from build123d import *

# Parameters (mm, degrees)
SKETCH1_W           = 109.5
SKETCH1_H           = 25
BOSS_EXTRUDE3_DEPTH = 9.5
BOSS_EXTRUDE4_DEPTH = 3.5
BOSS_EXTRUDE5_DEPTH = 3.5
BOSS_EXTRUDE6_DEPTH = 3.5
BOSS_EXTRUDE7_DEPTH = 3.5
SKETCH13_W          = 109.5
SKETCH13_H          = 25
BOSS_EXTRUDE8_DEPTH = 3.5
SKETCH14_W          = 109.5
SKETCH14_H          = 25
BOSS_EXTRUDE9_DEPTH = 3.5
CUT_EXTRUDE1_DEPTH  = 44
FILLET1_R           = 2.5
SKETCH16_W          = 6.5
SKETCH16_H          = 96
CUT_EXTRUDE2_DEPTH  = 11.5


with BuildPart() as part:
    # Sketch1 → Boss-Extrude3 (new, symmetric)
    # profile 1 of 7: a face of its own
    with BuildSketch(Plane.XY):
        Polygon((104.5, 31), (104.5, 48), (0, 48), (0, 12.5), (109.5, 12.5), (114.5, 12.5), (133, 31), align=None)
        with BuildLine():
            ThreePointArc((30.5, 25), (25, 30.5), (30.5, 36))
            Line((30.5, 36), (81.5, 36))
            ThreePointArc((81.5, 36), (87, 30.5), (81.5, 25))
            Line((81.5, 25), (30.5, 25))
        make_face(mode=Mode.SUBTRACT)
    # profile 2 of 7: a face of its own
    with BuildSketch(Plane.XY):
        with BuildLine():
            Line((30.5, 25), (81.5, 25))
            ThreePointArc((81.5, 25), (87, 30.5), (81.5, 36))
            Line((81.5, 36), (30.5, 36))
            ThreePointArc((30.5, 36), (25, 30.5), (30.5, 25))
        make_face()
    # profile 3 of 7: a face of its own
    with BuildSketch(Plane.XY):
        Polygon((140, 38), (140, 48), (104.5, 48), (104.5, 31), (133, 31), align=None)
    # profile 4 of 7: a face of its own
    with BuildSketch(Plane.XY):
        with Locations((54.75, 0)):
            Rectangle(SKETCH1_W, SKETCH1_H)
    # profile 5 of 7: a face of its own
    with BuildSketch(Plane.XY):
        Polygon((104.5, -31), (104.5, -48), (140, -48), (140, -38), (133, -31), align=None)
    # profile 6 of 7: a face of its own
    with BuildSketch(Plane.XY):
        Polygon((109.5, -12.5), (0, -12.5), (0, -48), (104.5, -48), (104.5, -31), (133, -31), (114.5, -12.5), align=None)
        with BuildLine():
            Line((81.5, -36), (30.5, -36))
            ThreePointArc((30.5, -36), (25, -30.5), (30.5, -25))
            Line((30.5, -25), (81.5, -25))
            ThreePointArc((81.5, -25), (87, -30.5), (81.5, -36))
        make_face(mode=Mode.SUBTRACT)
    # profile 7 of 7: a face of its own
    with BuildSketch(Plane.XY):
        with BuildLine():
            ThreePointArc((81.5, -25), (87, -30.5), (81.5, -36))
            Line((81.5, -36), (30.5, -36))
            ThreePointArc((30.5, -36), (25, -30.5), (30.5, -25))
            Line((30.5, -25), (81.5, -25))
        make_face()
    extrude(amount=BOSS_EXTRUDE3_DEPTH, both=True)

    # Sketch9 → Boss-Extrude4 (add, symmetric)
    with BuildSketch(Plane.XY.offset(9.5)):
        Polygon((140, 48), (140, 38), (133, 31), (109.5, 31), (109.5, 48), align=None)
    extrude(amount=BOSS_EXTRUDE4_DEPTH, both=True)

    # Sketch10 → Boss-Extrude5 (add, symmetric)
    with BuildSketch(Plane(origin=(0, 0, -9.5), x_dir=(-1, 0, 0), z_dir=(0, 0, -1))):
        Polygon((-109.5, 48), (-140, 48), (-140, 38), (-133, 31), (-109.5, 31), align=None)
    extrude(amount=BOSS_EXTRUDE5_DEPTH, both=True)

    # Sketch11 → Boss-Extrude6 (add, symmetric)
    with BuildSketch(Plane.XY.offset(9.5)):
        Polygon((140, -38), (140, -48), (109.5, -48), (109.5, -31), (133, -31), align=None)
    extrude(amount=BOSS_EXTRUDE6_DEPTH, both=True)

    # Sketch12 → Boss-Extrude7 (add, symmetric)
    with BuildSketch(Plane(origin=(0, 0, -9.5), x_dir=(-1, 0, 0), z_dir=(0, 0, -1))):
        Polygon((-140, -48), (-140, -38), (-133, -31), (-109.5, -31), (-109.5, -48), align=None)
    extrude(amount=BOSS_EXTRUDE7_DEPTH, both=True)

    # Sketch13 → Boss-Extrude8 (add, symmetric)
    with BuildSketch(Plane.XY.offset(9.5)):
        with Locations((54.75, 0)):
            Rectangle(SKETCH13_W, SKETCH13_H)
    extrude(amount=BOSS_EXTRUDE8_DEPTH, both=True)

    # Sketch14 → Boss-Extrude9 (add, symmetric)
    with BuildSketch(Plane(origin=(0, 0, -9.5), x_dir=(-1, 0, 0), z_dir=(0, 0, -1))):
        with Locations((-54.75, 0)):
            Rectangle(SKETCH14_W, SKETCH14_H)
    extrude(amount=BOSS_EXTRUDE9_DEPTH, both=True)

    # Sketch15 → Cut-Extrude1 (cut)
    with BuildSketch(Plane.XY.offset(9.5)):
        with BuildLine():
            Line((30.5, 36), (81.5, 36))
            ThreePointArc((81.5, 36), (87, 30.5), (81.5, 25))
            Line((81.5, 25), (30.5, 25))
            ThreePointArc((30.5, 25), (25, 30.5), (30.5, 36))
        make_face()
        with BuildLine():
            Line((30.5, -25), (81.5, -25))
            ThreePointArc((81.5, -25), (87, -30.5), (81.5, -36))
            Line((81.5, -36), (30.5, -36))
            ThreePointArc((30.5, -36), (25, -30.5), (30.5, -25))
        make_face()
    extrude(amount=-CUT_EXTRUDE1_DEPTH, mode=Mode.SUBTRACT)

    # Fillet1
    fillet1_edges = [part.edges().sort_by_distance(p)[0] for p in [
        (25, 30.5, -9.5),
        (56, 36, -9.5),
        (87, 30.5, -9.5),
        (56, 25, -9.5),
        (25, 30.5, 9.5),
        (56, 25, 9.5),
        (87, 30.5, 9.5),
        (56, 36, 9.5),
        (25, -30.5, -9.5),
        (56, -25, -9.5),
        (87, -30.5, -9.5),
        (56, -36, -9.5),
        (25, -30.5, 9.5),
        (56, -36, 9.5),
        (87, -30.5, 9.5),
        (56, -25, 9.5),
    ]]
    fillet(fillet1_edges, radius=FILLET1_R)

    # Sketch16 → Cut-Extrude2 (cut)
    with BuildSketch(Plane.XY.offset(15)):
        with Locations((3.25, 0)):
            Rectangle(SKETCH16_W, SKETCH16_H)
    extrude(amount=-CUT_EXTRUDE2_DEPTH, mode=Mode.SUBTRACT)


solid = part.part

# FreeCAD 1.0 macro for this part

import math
import FreeCAD as App
import Part
import Sketcher

V = App.Vector
Q = App.Units.Quantity


def edges_at(feature, points):
    """Names of the edges that pass closest to the given points."""
    edges = feature.Shape.Edges
    near = lambda p: min(range(len(edges)), key=lambda i: edges[i].distToShape(Part.Vertex(*p))[0])
    return sorted({f"Edge{near(p) + 1}" for p in points})


def add_polygon(sketch, points):
    """Adds a closed chain of lines whose ends are joined by coincident constraints."""
    first, n = sketch.GeometryCount, len(points)
    for a, b in zip(points, points[1:] + points[:1]):
        sketch.addGeometry(Part.LineSegment(App.Vector(*a, 0), App.Vector(*b, 0)), False)
    for i in range(n):
        sketch.addConstraint(Sketcher.Constraint("Coincident", first + i, 2, first + (i + 1) % n, 1))

doc = App.newDocument("Part")
params = doc.addObject("Spreadsheet::Sheet", "Params")
for row, (alias, value) in enumerate([
    ("sketch1_width", "140 mm"),
    ("sketch1_width2", "5 mm"),
    ("sketch1_height", "96 mm"),
    ("sketch1_height2", "10 mm"),
    ("sketch1_height3", "25 mm"),
    ("pad1_length", "19 mm"),
    ("sketch2_height", "10 mm"),
    ("sketch2_height2", "17 mm"),
    ("sketch2_width", "30.5 mm"),
    ("pad2_length", "7 mm"),
    ("sketch3_height", "10 mm"),
    ("sketch3_height2", "17 mm"),
    ("sketch3_width", "30.5 mm"),
    ("pad3_length", "7 mm"),
    ("sketch4_height", "10 mm"),
    ("sketch4_height2", "17 mm"),
    ("sketch4_width", "23.5 mm"),
    ("pad4_length", "7 mm"),
    ("sketch5_height", "10 mm"),
    ("sketch5_height2", "17 mm"),
    ("sketch5_width", "30.5 mm"),
    ("pad5_length", "7 mm"),
    ("sketch6_height", "25 mm"),
    ("sketch6_width", "109.5 mm"),
    ("pad6_length", "7 mm"),
    ("sketch7_height", "25 mm"),
    ("sketch7_width", "109.5 mm"),
    ("pad7_length", "7 mm"),
    ("sketch8_radius", "5.5 mm"),
    ("sketch8_width", "51 mm"),
    ("pocket1_length", "44 mm"),
    ("fillet_radius", "2.5 mm"),
    ("sketch9_height", "96 mm"),
    ("sketch9_width", "6.5 mm"),
    ("pocket2_length", "11.5 mm"),
], start=1):
    params.set(f"A{row}", alias)
    params.set(f"B{row}", "=" + value)
    params.setAlias(f"B{row}", alias)

body = doc.addObject("PartDesign::Body", "Body")

# Sketch on XY plane
sketch1 = doc.addObject("Sketcher::SketchObject", "Sketch")
body.addObject(sketch1)
sketch1.AttachmentSupport = (doc.XY_Plane, [""])
sketch1.MapMode = "FlatFace"
add_polygon(sketch1, [(0, 48), (0, -48), (140, -48), (140, -38), (114, -12), (110, -12), (110, 12), (114, 12), (140, 38), (140, 48)])  # lines 0-9
sketch1.addConstraint([
    Sketcher.Constraint("Vertical", 0),
    Sketcher.Constraint("Horizontal", 1),
    Sketcher.Constraint("Vertical", 2),
    Sketcher.Constraint("Horizontal", 4),
    Sketcher.Constraint("Vertical", 5),
    Sketcher.Constraint("Horizontal", 6),
    Sketcher.Constraint("Vertical", 8),
    Sketcher.Constraint("Horizontal", 9),
    Sketcher.Constraint("Symmetric", 0, 2, 9, 2, -1, 1),
    Sketcher.Constraint("Symmetric", 3, 2, 6, 2, -1),
    Sketcher.Constraint("Symmetric", 2, 2, 7, 2, -1),
    Sketcher.Constraint("Perpendicular", 3, 7),
    Sketcher.Constraint("DistanceX", 1, 1, 1, 2, 140.0),
    Sketcher.Constraint("DistanceX", 4, 2, 4, 1, 5.0),
    Sketcher.Constraint("DistanceY", 0, 2, 0, 1, 96.0),
    Sketcher.Constraint("DistanceY", 2, 1, 2, 2, 10.0),
    Sketcher.Constraint("DistanceY", 5, 1, 5, 2, 25.0),
])
sketch1.setExpression("Constraints[22]", "Params.sketch1_width")
sketch1.setExpression("Constraints[23]", "Params.sketch1_width2")
sketch1.setExpression("Constraints[24]", "Params.sketch1_height")
sketch1.setExpression("Constraints[25]", "Params.sketch1_height2")
sketch1.setExpression("Constraints[26]", "Params.sketch1_height3")
pad1 = doc.addObject("PartDesign::Pad", "Pad")
body.addObject(pad1)
pad1.Profile = sketch1
pad1.setExpression("Length", "Params.pad1_length")
pad1.Midplane = True

# Sketch on XY plane
sketch2 = doc.addObject("Sketcher::SketchObject", "Sketch001")
body.addObject(sketch2)
sketch2.AttachmentSupport = (doc.XY_Plane, [""])
sketch2.MapMode = "FlatFace"
sketch2.AttachmentOffset = App.Placement(V(0, 0, 9.5), App.Rotation())
add_polygon(sketch2, [(140, 38), (140, 48), (110, 48), (110, 31), (133, 31)])  # lines 0-4
sketch2.addConstraint([
    Sketcher.Constraint("Vertical", 0),
    Sketcher.Constraint("Horizontal", 1),
    Sketcher.Constraint("Vertical", 2),
    Sketcher.Constraint("Horizontal", 3),
    Sketcher.Constraint("DistanceY", 0, 1, 0, 2, 10.0),
    Sketcher.Constraint("DistanceY", 2, 2, 2, 1, 17.0),
    Sketcher.Constraint("Angle", 4, Q("45 deg")),
    Sketcher.Constraint("DistanceX", 1, 2, 1, 1, 30.5),
    Sketcher.Constraint("DistanceX", -1, 1, 0, 2, 140.0),
    Sketcher.Constraint("DistanceY", -1, 1, 0, 2, 48.0),
])
sketch2.setExpression("Constraints[9]", "Params.sketch2_height")
sketch2.setExpression("Constraints[10]", "Params.sketch2_height2")
sketch2.setExpression("Constraints[12]", "Params.sketch2_width")
pad2 = doc.addObject("PartDesign::Pad", "Pad001")
body.addObject(pad2)
pad2.Profile = sketch2
pad2.setExpression("Length", "Params.pad2_length")
pad2.Midplane = True

# Sketch on XY plane
sketch3 = doc.addObject("Sketcher::SketchObject", "Sketch002")
body.addObject(sketch3)
sketch3.AttachmentSupport = (doc.XY_Plane, [""])
sketch3.MapMode = "FlatFace"
sketch3.AttachmentOffset = App.Placement(V(0, 0, -9.5), App.Rotation())
add_polygon(sketch3, [(110, 48), (140, 48), (140, 38), (133, 31), (110, 31)])  # lines 0-4
sketch3.addConstraint([
    Sketcher.Constraint("Horizontal", 0),
    Sketcher.Constraint("Vertical", 1),
    Sketcher.Constraint("Horizontal", 3),
    Sketcher.Constraint("Vertical", 4),
    Sketcher.Constraint("DistanceY", 1, 2, 1, 1, 10.0),
    Sketcher.Constraint("DistanceY", 4, 1, 4, 2, 17.0),
    Sketcher.Constraint("Angle", 2, Q("-135 deg")),
    Sketcher.Constraint("DistanceX", 0, 1, 0, 2, 30.5),
    Sketcher.Constraint("DistanceX", -1, 1, 0, 2, 140.0),
    Sketcher.Constraint("DistanceY", -1, 1, 0, 2, 48.0),
])
sketch3.setExpression("Constraints[9]", "Params.sketch3_height")
sketch3.setExpression("Constraints[10]", "Params.sketch3_height2")
sketch3.setExpression("Constraints[12]", "Params.sketch3_width")
pad3 = doc.addObject("PartDesign::Pad", "Pad002")
body.addObject(pad3)
pad3.Profile = sketch3
pad3.setExpression("Length", "Params.pad3_length")
pad3.Midplane = True

# Sketch on XY plane
sketch4 = doc.addObject("Sketcher::SketchObject", "Sketch003")
body.addObject(sketch4)
sketch4.AttachmentSupport = (doc.XY_Plane, [""])
sketch4.MapMode = "FlatFace"
sketch4.AttachmentOffset = App.Placement(V(0, 0, 9.5), App.Rotation())
add_polygon(sketch4, [(140, -48), (140, -38), (133, -31), (110, -31), (110, -48)])  # lines 0-4
sketch4.addConstraint([
    Sketcher.Constraint("Vertical", 0),
    Sketcher.Constraint("Horizontal", 2),
    Sketcher.Constraint("Vertical", 3),
    Sketcher.Constraint("Horizontal", 4),
    Sketcher.Constraint("DistanceY", 0, 1, 0, 2, 10.0),
    Sketcher.Constraint("DistanceY", 3, 2, 3, 1, 17.0),
    Sketcher.Constraint("Angle", 1, Q("135 deg")),
    Sketcher.Constraint("DistanceX", 2, 2, 2, 1, 23.5),
    Sketcher.Constraint("DistanceX", -1, 1, 0, 2, 140.0),
    Sketcher.Constraint("DistanceY", 0, 2, -1, 1, 38.0),
])
sketch4.setExpression("Constraints[9]", "Params.sketch4_height")
sketch4.setExpression("Constraints[10]", "Params.sketch4_height2")
sketch4.setExpression("Constraints[12]", "Params.sketch4_width")
pad4 = doc.addObject("PartDesign::Pad", "Pad003")
body.addObject(pad4)
pad4.Profile = sketch4
pad4.setExpression("Length", "Params.pad4_length")
pad4.Midplane = True

# Sketch on XY plane
sketch5 = doc.addObject("Sketcher::SketchObject", "Sketch004")
body.addObject(sketch5)
sketch5.AttachmentSupport = (doc.XY_Plane, [""])
sketch5.MapMode = "FlatFace"
sketch5.AttachmentOffset = App.Placement(V(0, 0, -9.5), App.Rotation())
add_polygon(sketch5, [(140, -38), (140, -48), (110, -48), (110, -31), (133, -31)])  # lines 0-4
sketch5.addConstraint([
    Sketcher.Constraint("Vertical", 0),
    Sketcher.Constraint("Horizontal", 1),
    Sketcher.Constraint("Vertical", 2),
    Sketcher.Constraint("Horizontal", 3),
    Sketcher.Constraint("DistanceY", 0, 2, 0, 1, 10.0),
    Sketcher.Constraint("DistanceY", 2, 1, 2, 2, 17.0),
    Sketcher.Constraint("Angle", 4, Q("-45 deg")),
    Sketcher.Constraint("DistanceX", 1, 2, 1, 1, 30.5),
    Sketcher.Constraint("DistanceX", -1, 1, 0, 2, 140.0),
    Sketcher.Constraint("DistanceY", 0, 2, -1, 1, 48.0),
])
sketch5.setExpression("Constraints[9]", "Params.sketch5_height")
sketch5.setExpression("Constraints[10]", "Params.sketch5_height2")
sketch5.setExpression("Constraints[12]", "Params.sketch5_width")
pad5 = doc.addObject("PartDesign::Pad", "Pad004")
body.addObject(pad5)
pad5.Profile = sketch5
pad5.setExpression("Length", "Params.pad5_length")
pad5.Midplane = True

# Sketch on XY plane
sketch6 = doc.addObject("Sketcher::SketchObject", "Sketch005")
body.addObject(sketch6)
sketch6.AttachmentSupport = (doc.XY_Plane, [""])
sketch6.MapMode = "FlatFace"
sketch6.AttachmentOffset = App.Placement(V(0, 0, 9.5), App.Rotation())
add_polygon(sketch6, [(0, 12), (0, -12), (110, -12), (110, 12)])  # lines 0-3
sketch6.addConstraint([
    Sketcher.Constraint("Vertical", 0),
    Sketcher.Constraint("Horizontal", 1),
    Sketcher.Constraint("Vertical", 2),
    Sketcher.Constraint("Horizontal", 3),
    Sketcher.Constraint("Symmetric", 0, 2, 3, 2, -1, 1),
    Sketcher.Constraint("DistanceY", 0, 2, 0, 1, 25.0),
    Sketcher.Constraint("DistanceX", 1, 1, 1, 2, 109.5),
])
sketch6.setExpression("Constraints[9]", "Params.sketch6_height")
sketch6.setExpression("Constraints[10]", "Params.sketch6_width")
pad6 = doc.addObject("PartDesign::Pad", "Pad005")
body.addObject(pad6)
pad6.Profile = sketch6
pad6.setExpression("Length", "Params.pad6_length")
pad6.Midplane = True

# Sketch on XY plane
sketch7 = doc.addObject("Sketcher::SketchObject", "Sketch006")
body.addObject(sketch7)
sketch7.AttachmentSupport = (doc.XY_Plane, [""])
sketch7.MapMode = "FlatFace"
sketch7.AttachmentOffset = App.Placement(V(0, 0, -9.5), App.Rotation())
add_polygon(sketch7, [(110, 12), (110, -12), (0, -12), (0, 12)])  # lines 0-3
sketch7.addConstraint([
    Sketcher.Constraint("Vertical", 0),
    Sketcher.Constraint("Horizontal", 1),
    Sketcher.Constraint("Vertical", 2),
    Sketcher.Constraint("Horizontal", 3),
    Sketcher.Constraint("Symmetric", 1, 2, 2, 2, -1, 1),
    Sketcher.Constraint("DistanceY", 0, 2, 0, 1, 25.0),
    Sketcher.Constraint("DistanceX", 1, 2, 1, 1, 109.5),
])
sketch7.setExpression("Constraints[9]", "Params.sketch7_height")
sketch7.setExpression("Constraints[10]", "Params.sketch7_width")
pad7 = doc.addObject("PartDesign::Pad", "Pad006")
body.addObject(pad7)
pad7.Profile = sketch7
pad7.setExpression("Length", "Params.pad7_length")
pad7.Midplane = True

# Sketch on XY plane
sketch8 = doc.addObject("Sketcher::SketchObject", "Sketch007")
body.addObject(sketch8)
sketch8.AttachmentSupport = (doc.XY_Plane, [""])
sketch8.MapMode = "FlatFace"
sketch8.AttachmentOffset = App.Placement(V(0, 0, 9.5), App.Rotation())
sketch8.addGeometry([
    Part.LineSegment(V(82, 36, 0), V(30, 36, 0)),  # 0
    Part.ArcOfCircle(Part.Circle(V(30, 30, 0), V(0, 0, 1), 6), math.radians(90), math.radians(270)),  # 1
    Part.LineSegment(V(30, 25, 0), V(82, 25, 0)),  # 2
    Part.ArcOfCircle(Part.Circle(V(82, 30, 0), V(0, 0, 1), 6), math.radians(-90), math.radians(90)),  # 3
    Part.LineSegment(V(82, -25, 0), V(30, -25, 0)),  # 4
    Part.ArcOfCircle(Part.Circle(V(30, -30, 0), V(0, 0, 1), 6), math.radians(90), math.radians(270)),  # 5
    Part.LineSegment(V(30, -36, 0), V(82, -36, 0)),  # 6
    Part.ArcOfCircle(Part.Circle(V(82, -30, 0), V(0, 0, 1), 6), math.radians(-90), math.radians(90)),  # 7
], False)
sketch8.addConstraint([
    Sketcher.Constraint("Tangent", 0, 2, 1, 1),
    Sketcher.Constraint("Tangent", 1, 2, 2, 1),
    Sketcher.Constraint("Tangent", 2, 2, 3, 1),
    Sketcher.Constraint("Tangent", 3, 2, 0, 1),
    Sketcher.Constraint("Tangent", 4, 2, 5, 1),
    Sketcher.Constraint("Tangent", 5, 2, 6, 1),
    Sketcher.Constraint("Tangent", 6, 2, 7, 1),
    Sketcher.Constraint("Tangent", 7, 2, 4, 1),
    Sketcher.Constraint("Horizontal", 0),
    Sketcher.Constraint("Horizontal", 2),
    Sketcher.Constraint("Horizontal", 4),
    Sketcher.Constraint("Horizontal", 6),
    Sketcher.Constraint("Equal", 3, 5),
    Sketcher.Constraint("Symmetric", 1, 3, 5, 3, -1),
    Sketcher.Constraint("Vertical", 3, 3, 7, 3),
    Sketcher.Constraint("Radius", 1, 5.5),
    Sketcher.Constraint("DistanceX", 0, 2, 0, 1, 51.0),
    Sketcher.Constraint("DistanceY", -1, 1, 0, 2, 36.0),
    Sketcher.Constraint("DistanceX", -1, 1, 1, 3, 30.5),
])
sketch8.setExpression("Constraints[15]", "Params.sketch8_radius")
sketch8.setExpression("Constraints[16]", "Params.sketch8_width")
pocket1 = doc.addObject("PartDesign::Pocket", "Pocket")
body.addObject(pocket1)
pocket1.Profile = sketch8
pocket1.setExpression("Length", "Params.pocket1_length")
doc.recompute()

fillet = doc.addObject("PartDesign::Fillet", "Fillet")
body.addObject(fillet)
fillet.Base = (pocket1, edges_at(pocket1, [
    (25, 30.5, -9.5),
    (56, 36, -9.5),
    (87, 30.5, -9.5),
    (56, 25, -9.5),
    (25, 30.5, 9.5),
    (56, 25, 9.5),
    (87, 30.5, 9.5),
    (56, 36, 9.5),
    (25, -30.5, -9.5),
    (56, -25, -9.5),
    (87, -30.5, -9.5),
    (56, -36, -9.5),
    (25, -30.5, 9.5),
    (56, -36, 9.5),
    (87, -30.5, 9.5),
    (56, -25, 9.5),
]))
fillet.setExpression("Radius", "Params.fillet_radius")

# Sketch on XY plane
sketch9 = doc.addObject("Sketcher::SketchObject", "Sketch008")
body.addObject(sketch9)
sketch9.AttachmentSupport = (doc.XY_Plane, [""])
sketch9.MapMode = "FlatFace"
sketch9.AttachmentOffset = App.Placement(V(0, 0, 15), App.Rotation())
add_polygon(sketch9, [(0, 48), (0, -48), (6, -48), (6, 48)])  # lines 0-3
sketch9.addConstraint([
    Sketcher.Constraint("Vertical", 0),
    Sketcher.Constraint("Horizontal", 1),
    Sketcher.Constraint("Vertical", 2),
    Sketcher.Constraint("Horizontal", 3),
    Sketcher.Constraint("Symmetric", 0, 2, 3, 2, -1, 1),
    Sketcher.Constraint("DistanceY", 0, 2, 0, 1, 96.0),
    Sketcher.Constraint("DistanceX", 1, 1, 1, 2, 6.5),
])
sketch9.setExpression("Constraints[9]", "Params.sketch9_height")
sketch9.setExpression("Constraints[10]", "Params.sketch9_width")
pocket2 = doc.addObject("PartDesign::Pocket", "Pocket001")
body.addObject(pocket2)
pocket2.Profile = sketch9
pocket2.setExpression("Length", "Params.pocket2_length")

doc.recompute()
